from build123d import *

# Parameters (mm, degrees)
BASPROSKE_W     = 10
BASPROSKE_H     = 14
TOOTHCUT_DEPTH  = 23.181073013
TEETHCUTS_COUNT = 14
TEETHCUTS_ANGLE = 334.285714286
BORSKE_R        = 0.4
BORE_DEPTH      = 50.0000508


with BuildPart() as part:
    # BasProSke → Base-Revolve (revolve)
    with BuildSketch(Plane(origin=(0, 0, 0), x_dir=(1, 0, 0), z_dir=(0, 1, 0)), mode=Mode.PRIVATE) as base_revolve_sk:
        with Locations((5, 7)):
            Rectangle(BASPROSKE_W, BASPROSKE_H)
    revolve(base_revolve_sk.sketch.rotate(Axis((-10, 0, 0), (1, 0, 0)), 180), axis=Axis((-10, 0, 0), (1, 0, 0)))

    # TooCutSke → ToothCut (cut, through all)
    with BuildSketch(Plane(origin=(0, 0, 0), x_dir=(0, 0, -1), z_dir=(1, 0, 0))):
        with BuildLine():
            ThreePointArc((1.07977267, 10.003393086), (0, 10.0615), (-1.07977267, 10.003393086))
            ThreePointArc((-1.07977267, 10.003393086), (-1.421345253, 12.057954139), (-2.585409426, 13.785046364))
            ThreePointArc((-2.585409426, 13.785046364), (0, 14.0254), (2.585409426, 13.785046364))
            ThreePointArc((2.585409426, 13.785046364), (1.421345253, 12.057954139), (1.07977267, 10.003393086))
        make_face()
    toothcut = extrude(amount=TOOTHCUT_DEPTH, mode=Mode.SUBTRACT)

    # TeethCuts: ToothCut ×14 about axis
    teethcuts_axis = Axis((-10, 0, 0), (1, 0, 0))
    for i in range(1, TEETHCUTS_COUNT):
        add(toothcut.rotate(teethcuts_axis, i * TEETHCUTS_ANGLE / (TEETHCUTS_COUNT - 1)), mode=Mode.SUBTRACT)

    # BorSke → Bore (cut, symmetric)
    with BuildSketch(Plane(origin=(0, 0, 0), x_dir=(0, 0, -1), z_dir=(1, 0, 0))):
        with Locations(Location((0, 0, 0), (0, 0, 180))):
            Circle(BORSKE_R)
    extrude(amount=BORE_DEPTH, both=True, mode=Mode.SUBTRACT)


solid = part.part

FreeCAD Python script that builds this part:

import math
import FreeCAD as App
import Part
import Sketcher

V = App.Vector
Q = App.Units.Quantity


def add_polygon(sketch, points):
    """Adds a closed chain of lines whose ends are joined by coincident constraints."""
    first, n = sketch.GeometryCount, len(points)
    for a, b in zip(points, points[1:] + points[:1]):
        sketch.addGeometry(Part.LineSegment(App.Vector(*a, 0), App.Vector(*b, 0)), False)
    for i in range(n):
        sketch.addConstraint(Sketcher.Constraint("Coincident", first + i, 2, first + (i + 1) % n, 1))

doc = App.newDocument("Part")
params = doc.addObject("Spreadsheet::Sheet", "Params")
for row, (alias, value) in enumerate([
    ("sketch1_width", "10 mm"),
    ("sketch1_height", "14 mm"),
    ("revolution_angle", "360 deg"),
    ("sketch2_radius", "4.9 mm"),
    ("sketch3_diameter", "0.8 mm"),
    ("pocket2_length", "100.000102 mm"),
], start=1):
    params.set(f"A{row}", alias)
    params.set(f"B{row}", "=" + value)
    params.setAlias(f"B{row}", alias)

body = doc.addObject("PartDesign::Body", "Body")

# Sketch on XZ plane
sketch1 = body.newObject("Sketcher::SketchObject", "Sketch")
sketch1.AttachmentSupport = (doc.getObject("XZ_Plane"), [""])
sketch1.MapMode = "FlatFace"
add_polygon(sketch1, [(0, -14), (0, 0), (10, 0), (10, -14)])  # lines 0-3
sketch1.addConstraint(Sketcher.Constraint("Vertical", 0))
sketch1.addConstraint(Sketcher.Constraint("Horizontal", 1))
sketch1.addConstraint(Sketcher.Constraint("Vertical", 2))
sketch1.addConstraint(Sketcher.Constraint("Horizontal", 3))
sketch1.addConstraint(Sketcher.Constraint("Coincident", 0, 2, -1, 1))
sketch1.addConstraint(Sketcher.Constraint("DistanceX", 1, 1, 1, 2, Q("10 mm")))
sketch1.addConstraint(Sketcher.Constraint("DistanceY", 0, 1, 0, 2, Q("14 mm")))
sketch1.setExpression("Constraints[9]", "Params.sketch1_width")
sketch1.setExpression("Constraints[10]", "Params.sketch1_height")
revolution = body.newObject("PartDesign::Revolution", "Revolution")
revolution.Profile = sketch1
revolution.ReferenceAxis = (sketch1, ["H_Axis"])
revolution.setExpression("Angle", "Params.revolution_angle")

# Sketch on YZ plane
sketch2 = body.newObject("Sketcher::SketchObject", "Sketch001")
sketch2.AttachmentSupport = (doc.getObject("YZ_Plane"), [""])
sketch2.MapMode = "FlatFace"
sketch2.addGeometry(Part.ArcOfCircle(Part.Circle(V(0, 0, 0), V(0, 0, 1), 10.1), math.radians(-6.16), math.radians(6.16)), False)
sketch2.addGeometry(Part.ArcOfCircle(Part.Circle(V(10.2, -6, 0), V(0, 0, 1), 4.9), math.radians(44), math.radians(93)), False)
sketch2.addGeometry(Part.ArcOfCircle(Part.Circle(V(0, 0, 0), V(0, 0, 1), 14), math.radians(-11), math.radians(11)), False)
sketch2.addGeometry(Part.ArcOfCircle(Part.Circle(V(10.2, 6, 0), V(0, 0, 1), 4.9), math.radians(-93), math.radians(-44)), False)
sketch2.addConstraint(Sketcher.Constraint("Coincident", 0, 1, 1, 2))
sketch2.addConstraint(Sketcher.Constraint("Coincident", 1, 1, 2, 1))
sketch2.addConstraint(Sketcher.Constraint("Coincident", 2, 2, 3, 2))
sketch2.addConstraint(Sketcher.Constraint("Coincident", 3, 1, 0, 2))
sketch2.addConstraint(Sketcher.Constraint("Coincident", 0, 3, -1, 1))
sketch2.addConstraint(Sketcher.Constraint("Coincident", 2, 3, -1, 1))
sketch2.addConstraint(Sketcher.Constraint("Equal", 1, 3))
sketch2.addConstraint(Sketcher.Constraint("Symmetric", 1, 3, 3, 3, -1))
sketch2.addConstraint(Sketcher.Constraint("Radius", 1, Q("4.9 mm")))
sketch2.addConstraint(Sketcher.Constraint("Radius", 0, Q("10.0615 mm")))
sketch2.addConstraint(Sketcher.Constraint("Radius", 2, Q("14.0254 mm")))
sketch2.addConstraint(Sketcher.Constraint("DistanceY", 1, 1, 3, 3, Q("8.559201 mm")))
sketch2.addConstraint(Sketcher.Constraint("DistanceY", 1, 3, -1, 1, Q("5.973791 mm")))
sketch2.setExpression("Constraints[8]", "Params.sketch2_radius")
pocket1 = body.newObject("PartDesign::Pocket", "Pocket")
pocket1.Profile = sketch2
pocket1.Type = "ThroughAll"
pocket1.Reversed = True
doc.recompute()

polarpattern = body.newObject("PartDesign::PolarPattern", "PolarPattern")
polarpattern.Originals = [pocket1]
polarpattern.Axis = (doc.getObject("X_Axis"), [""])
polarpattern.Angle = 360
polarpattern.Occurrences = 14
body.Tip = polarpattern

# Sketch on YZ plane
sketch3 = body.newObject("Sketcher::SketchObject", "Sketch002")
sketch3.AttachmentSupport = (doc.getObject("YZ_Plane"), [""])
sketch3.MapMode = "FlatFace"
sketch3.addGeometry(Part.Circle(V(0, 0, 0), V(0, 0, 1), 0.4), False)
sketch3.addConstraint(Sketcher.Constraint("Coincident", 0, 3, -1, 1))
sketch3.addConstraint(Sketcher.Constraint("Diameter", 0, Q("0.8 mm")))
sketch3.setExpression("Constraints[1]", "Params.sketch3_diameter")
pocket2 = body.newObject("PartDesign::Pocket", "Pocket001")
pocket2.Profile = sketch3
pocket2.setExpression("Length", "Params.pocket2_length")
pocket2.Midplane = True

doc.recompute()
